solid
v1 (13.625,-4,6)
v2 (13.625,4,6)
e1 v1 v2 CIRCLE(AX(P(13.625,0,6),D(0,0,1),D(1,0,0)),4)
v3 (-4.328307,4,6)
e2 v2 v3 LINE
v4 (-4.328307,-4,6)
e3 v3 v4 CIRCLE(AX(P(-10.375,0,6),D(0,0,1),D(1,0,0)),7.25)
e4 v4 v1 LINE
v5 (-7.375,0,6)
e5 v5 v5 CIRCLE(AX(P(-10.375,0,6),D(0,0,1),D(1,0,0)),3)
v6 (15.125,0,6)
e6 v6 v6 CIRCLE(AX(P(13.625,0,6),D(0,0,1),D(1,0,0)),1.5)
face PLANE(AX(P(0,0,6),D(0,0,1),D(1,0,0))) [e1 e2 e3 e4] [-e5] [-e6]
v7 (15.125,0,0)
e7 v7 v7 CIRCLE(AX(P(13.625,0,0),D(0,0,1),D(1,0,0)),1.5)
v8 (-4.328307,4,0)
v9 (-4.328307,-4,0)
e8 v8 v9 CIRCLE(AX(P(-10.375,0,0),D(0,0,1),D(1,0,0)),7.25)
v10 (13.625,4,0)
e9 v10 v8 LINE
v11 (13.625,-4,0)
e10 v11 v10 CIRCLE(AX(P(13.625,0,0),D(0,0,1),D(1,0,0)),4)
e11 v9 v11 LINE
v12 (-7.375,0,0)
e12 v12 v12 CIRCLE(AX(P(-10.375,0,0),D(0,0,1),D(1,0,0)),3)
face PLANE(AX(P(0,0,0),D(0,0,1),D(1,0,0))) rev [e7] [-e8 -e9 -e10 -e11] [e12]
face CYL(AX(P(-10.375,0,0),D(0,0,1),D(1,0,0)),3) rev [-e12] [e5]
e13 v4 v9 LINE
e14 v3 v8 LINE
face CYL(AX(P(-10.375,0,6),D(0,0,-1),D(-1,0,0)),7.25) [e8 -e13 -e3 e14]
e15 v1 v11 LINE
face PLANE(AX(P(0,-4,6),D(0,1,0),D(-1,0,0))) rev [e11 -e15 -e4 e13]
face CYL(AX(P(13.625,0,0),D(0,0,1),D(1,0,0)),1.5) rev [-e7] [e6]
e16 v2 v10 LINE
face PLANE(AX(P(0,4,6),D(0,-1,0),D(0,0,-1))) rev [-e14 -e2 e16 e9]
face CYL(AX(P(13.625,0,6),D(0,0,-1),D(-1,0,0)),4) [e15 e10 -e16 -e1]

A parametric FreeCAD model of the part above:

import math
import FreeCAD as App
import Part
import Sketcher

V = App.Vector

doc = App.newDocument("Part")
params = doc.addObject("Spreadsheet::Sheet", "Params")
for row, (alias, value) in enumerate([
    ("sketch1_radius", "4 mm"),
    ("sketch1_radius2", "7.25 mm"),
    ("pad1_length", "6 mm"),
    ("sketch2_diameter", "6 mm"),
    ("sketch2_diameter2", "3 mm"),
    ("pocket1_length", "6 mm"),
], start=1):
    params.set(f"A{row}", alias)
    params.set(f"B{row}", "=" + value)
    params.setAlias(f"B{row}", alias)

body = doc.addObject("PartDesign::Body", "Body")

sketch1 = body.newObject("Sketcher::SketchObject", "Sketch")
sketch1.AttachmentSupport = (doc.getObject("XY_Plane"), [""])
sketch1.MapMode = "FlatFace"
sketch1.addGeometry([
    Part.ArcOfCircle(Part.Circle(V(-10.4, 0, 0), V(0, 0, 1), 7.2), math.radians(33), math.radians(327)),
    Part.LineSegment(V(-4.3, -4, 0), V(13.6, -4, 0)),
    Part.ArcOfCircle(Part.Circle(V(13.6, 0, 0), V(0, 0, 1), 4), math.radians(-90), math.radians(90)),
    Part.LineSegment(V(13.6, 4, 0), V(-4.3, 4, 0)),
], False)
sketch1.addConstraint([
    Sketcher.Constraint("Coincident", 0, 2, 1, 1),
    Sketcher.Constraint("Tangent", 1, 2, 2, 1),
    Sketcher.Constraint("Tangent", 2, 2, 3, 1),
    Sketcher.Constraint("Coincident", 3, 2, 0, 1),
    Sketcher.Constraint("Horizontal", 1),
    Sketcher.Constraint("Horizontal", 3),
    Sketcher.Constraint("Symmetric", 0, 2, 3, 2, -1),
    Sketcher.Constraint("Radius", 2, 4.0),
    Sketcher.Constraint("Radius", 0, 7.25),
    Sketcher.Constraint("DistanceX", 0, 3, 2, 3, 24.0),
    Sketcher.Constraint("DistanceX", 0, 3, -1, 1, 10.375),
])
sketch1.setExpression("Constraints[7]", "Params.sketch1_radius")
sketch1.setExpression("Constraints[8]", "Params.sketch1_radius2")
pad1 = body.newObject("PartDesign::Pad", "Pad")
pad1.Profile = sketch1
pad1.setExpression("Length", "Params.pad1_length")

sketch2 = body.newObject("Sketcher::SketchObject", "Sketch001")
sketch2.AttachmentSupport = (doc.getObject("XY_Plane"), [""])
sketch2.MapMode = "FlatFace"
sketch2.AttachmentOffset = App.Placement(V(0, 0, 6), App.Rotation())
sketch2.addGeometry([
    Part.Circle(V(-10.4, 0, 0), V(0, 0, 1), 3),
    Part.Circle(V(13.6, 0, 0), V(0, 0, 1), 1.5),
], False)
sketch2.addConstraint([
    Sketcher.Constraint("PointOnObject", 0, 3, -1),
    Sketcher.Constraint("PointOnObject", 1, 3, -1),
    Sketcher.Constraint("Diameter", 0, 6.0),
    Sketcher.Constraint("Diameter", 1, 3.0),
    Sketcher.Constraint("DistanceX", 0, 3, 1, 3, 24.0),
    Sketcher.Constraint("DistanceX", 0, 3, -1, 1, 10.375),
])
sketch2.setExpression("Constraints[2]", "Params.sketch2_diameter")
sketch2.setExpression("Constraints[3]", "Params.sketch2_diameter2")
pocket1 = body.newObject("PartDesign::Pocket", "Pocket")
pocket1.Profile = sketch2
pocket1.setExpression("Length", "Params.pocket1_length")

doc.recompute()
